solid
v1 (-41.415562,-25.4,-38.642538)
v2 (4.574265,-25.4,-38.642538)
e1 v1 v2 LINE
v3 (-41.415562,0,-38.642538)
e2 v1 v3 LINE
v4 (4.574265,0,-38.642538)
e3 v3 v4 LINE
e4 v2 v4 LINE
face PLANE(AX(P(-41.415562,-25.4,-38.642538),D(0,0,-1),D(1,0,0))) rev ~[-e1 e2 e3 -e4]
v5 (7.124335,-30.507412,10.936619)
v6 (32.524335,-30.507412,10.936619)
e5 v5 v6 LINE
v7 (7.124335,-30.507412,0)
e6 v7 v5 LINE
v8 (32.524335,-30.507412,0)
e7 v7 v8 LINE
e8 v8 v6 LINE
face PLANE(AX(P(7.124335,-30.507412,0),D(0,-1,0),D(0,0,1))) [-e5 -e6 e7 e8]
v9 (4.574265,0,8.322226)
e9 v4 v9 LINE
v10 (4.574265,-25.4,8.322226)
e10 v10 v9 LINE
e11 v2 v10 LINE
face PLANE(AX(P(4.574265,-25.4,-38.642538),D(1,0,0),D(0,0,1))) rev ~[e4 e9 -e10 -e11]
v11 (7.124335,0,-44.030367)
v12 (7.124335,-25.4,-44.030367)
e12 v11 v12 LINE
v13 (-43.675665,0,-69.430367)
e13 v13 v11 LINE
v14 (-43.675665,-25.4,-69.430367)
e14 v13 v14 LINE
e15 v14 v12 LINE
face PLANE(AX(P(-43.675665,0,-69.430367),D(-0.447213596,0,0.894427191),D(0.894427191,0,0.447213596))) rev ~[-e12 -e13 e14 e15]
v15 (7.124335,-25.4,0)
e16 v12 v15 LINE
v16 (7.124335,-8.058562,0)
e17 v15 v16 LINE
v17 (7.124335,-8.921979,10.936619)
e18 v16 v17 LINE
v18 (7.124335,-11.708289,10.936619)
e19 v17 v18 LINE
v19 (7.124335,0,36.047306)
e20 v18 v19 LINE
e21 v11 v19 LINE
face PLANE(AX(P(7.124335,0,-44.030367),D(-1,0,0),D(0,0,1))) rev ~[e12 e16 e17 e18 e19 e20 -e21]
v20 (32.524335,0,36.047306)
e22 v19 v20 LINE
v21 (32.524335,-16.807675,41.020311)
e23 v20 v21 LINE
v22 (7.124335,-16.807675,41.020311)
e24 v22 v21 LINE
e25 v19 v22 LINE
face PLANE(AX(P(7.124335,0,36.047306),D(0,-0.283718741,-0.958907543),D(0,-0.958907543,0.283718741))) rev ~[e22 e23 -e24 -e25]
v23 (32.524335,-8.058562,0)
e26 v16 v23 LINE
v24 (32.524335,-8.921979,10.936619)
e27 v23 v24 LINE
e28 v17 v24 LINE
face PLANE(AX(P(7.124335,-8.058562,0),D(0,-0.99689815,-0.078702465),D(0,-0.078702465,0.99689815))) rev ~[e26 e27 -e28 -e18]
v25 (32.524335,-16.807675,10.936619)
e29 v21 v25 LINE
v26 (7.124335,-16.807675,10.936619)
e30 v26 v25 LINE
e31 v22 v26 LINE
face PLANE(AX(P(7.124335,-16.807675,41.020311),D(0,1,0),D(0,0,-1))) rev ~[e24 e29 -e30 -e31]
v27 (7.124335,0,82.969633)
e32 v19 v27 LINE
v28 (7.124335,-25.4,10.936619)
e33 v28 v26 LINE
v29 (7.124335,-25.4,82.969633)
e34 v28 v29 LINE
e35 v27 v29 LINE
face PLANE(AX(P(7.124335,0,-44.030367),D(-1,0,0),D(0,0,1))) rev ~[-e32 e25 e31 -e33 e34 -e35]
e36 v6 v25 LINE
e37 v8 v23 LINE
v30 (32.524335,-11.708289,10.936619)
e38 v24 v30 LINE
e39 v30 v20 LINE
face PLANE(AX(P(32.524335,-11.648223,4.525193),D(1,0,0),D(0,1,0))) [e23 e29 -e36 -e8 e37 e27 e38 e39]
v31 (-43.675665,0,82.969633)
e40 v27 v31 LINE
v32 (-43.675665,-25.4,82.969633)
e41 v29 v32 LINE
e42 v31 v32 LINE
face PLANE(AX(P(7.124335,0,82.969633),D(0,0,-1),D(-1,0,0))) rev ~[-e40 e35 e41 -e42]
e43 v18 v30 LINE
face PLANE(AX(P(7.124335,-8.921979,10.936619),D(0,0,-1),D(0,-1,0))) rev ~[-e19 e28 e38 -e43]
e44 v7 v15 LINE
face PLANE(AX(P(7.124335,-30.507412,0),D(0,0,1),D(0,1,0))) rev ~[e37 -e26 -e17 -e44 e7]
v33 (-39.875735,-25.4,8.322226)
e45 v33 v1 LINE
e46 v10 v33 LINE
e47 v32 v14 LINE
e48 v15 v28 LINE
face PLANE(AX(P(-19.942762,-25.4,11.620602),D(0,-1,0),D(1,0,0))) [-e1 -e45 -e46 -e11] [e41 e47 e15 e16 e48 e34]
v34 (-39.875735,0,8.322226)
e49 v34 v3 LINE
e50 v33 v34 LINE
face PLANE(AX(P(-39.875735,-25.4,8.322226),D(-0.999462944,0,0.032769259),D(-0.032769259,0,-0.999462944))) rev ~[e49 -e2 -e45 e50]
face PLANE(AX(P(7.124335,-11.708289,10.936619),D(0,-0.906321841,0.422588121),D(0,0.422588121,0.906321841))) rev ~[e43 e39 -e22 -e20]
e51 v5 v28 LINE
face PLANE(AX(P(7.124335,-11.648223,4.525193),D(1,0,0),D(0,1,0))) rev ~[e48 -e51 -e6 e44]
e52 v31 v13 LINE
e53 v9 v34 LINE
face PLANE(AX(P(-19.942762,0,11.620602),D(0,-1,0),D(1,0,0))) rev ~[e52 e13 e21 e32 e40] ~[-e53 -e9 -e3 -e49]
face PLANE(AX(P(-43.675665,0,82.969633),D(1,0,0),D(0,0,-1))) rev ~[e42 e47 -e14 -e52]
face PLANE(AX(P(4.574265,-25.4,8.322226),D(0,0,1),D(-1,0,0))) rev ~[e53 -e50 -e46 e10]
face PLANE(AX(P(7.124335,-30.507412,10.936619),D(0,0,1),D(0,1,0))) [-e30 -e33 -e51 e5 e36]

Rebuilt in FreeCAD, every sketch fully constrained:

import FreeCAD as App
import Part
import Sketcher
Q = App.Units.Quantity

doc = App.newDocument("Part")
body = doc.addObject("PartDesign::Body", "Body")

# Sketch on XZ plane
sketch1 = body.newObject("Sketcher::SketchObject", "Sketch")
sketch1.AttachmentSupport = (doc.getObject("XZ_Plane"), [""])
sketch1.MapMode = "FlatFace"
sketch1.addGeometry([
    Part.LineSegment(App.Vector(-44, 83, 0), App.Vector(-44, -69, 0)),
    Part.LineSegment(App.Vector(-44, -69, 0), App.Vector(7, -44, 0)),
    Part.LineSegment(App.Vector(7, -44, 0), App.Vector(7, 83, 0)),
    Part.LineSegment(App.Vector(7, 83, 0), App.Vector(-44, 83, 0)),
], False)
sketch1.addConstraint([
    Sketcher.Constraint("Coincident", 0, 2, 1, 1),
    Sketcher.Constraint("Coincident", 1, 2, 2, 1),
    Sketcher.Constraint("Coincident", 2, 2, 3, 1),
    Sketcher.Constraint("Coincident", 3, 2, 0, 1),
    Sketcher.Constraint("Vertical", 0),
    Sketcher.Constraint("Vertical", 2),
    Sketcher.Constraint("Horizontal", 3),
    Sketcher.Constraint("DistanceX", 3, 2, 3, 1, Q("2 in")),
    Sketcher.Constraint("DistanceY", 0, 2, 0, 1, Q("6 in")),
    Sketcher.Constraint("DistanceY", 2, 1, 2, 2, Q("5 in")),
    Sketcher.Constraint("DistanceX", 0, 2, -1, 1, 43.675665),
    Sketcher.Constraint("DistanceY", 0, 2, -1, 1, 69.430367),
])
pad1 = body.newObject("PartDesign::Pad", "Pad")
pad1.Profile = sketch1
pad1.Length = Q("1 in")

# Sketch on YZ plane
sketch2 = body.newObject("Sketcher::SketchObject", "Sketch001")
sketch2.AttachmentSupport = (doc.getObject("YZ_Plane"), [""])
sketch2.MapMode = "FlatFace"
sketch2.AttachmentOffset = App.Placement(App.Vector(0, 0, 7.124335), App.Rotation())
sketch2.addGeometry([
    Part.LineSegment(App.Vector(-8.1, 0, 0), App.Vector(-8.9, 10.9, 0)),  # 0
    Part.LineSegment(App.Vector(-8.9, 10.9, 0), App.Vector(-11.7, 10.9, 0)),  # 1
    Part.LineSegment(App.Vector(-11.7, 10.9, 0), App.Vector(0, 36, 0)),  # 2
    Part.LineSegment(App.Vector(0, 36, 0), App.Vector(-16.8, 41, 0)),  # 3
    Part.LineSegment(App.Vector(-16.8, 41, 0), App.Vector(-16.8, 10.9, 0)),  # 4
    Part.LineSegment(App.Vector(-16.8, 10.9, 0), App.Vector(-30.5, 10.9, 0)),  # 5
    Part.LineSegment(App.Vector(-30.5, 10.9, 0), App.Vector(-30.5, 0, 0)),  # 6
    Part.LineSegment(App.Vector(-30.5, 0, 0), App.Vector(-8.1, 0, 0)),  # 7
], False)
sketch2.addConstraint([
    Sketcher.Constraint("Coincident", 0, 2, 1, 1),
    Sketcher.Constraint("Coincident", 1, 2, 2, 1),
    Sketcher.Constraint("Coincident", 2, 2, 3, 1),
    Sketcher.Constraint("Coincident", 3, 2, 4, 1),
    Sketcher.Constraint("Coincident", 4, 2, 5, 1),
    Sketcher.Constraint("Coincident", 5, 2, 6, 1),
    Sketcher.Constraint("Coincident", 6, 2, 7, 1),
    Sketcher.Constraint("Coincident", 7, 2, 0, 1),
    Sketcher.Constraint("Horizontal", 1),
    Sketcher.Constraint("Vertical", 4),
    Sketcher.Constraint("Horizontal", 5),
    Sketcher.Constraint("Vertical", 6),
    Sketcher.Constraint("Horizontal", 7),
    Sketcher.Constraint("PointOnObject", 2, 2, -2),
    Sketcher.Constraint("PointOnObject", 6, 2, -1),
    Sketcher.Constraint("Horizontal", 1, 2, 4, 2),
    Sketcher.Constraint("DistanceX", 1, 2, 1, 1, 2.78631),
    Sketcher.Constraint("DistanceX", 7, 1, 7, 2, 22.44885),
    Sketcher.Constraint("DistanceY", 6, 2, 6, 1, 10.936619),
    Sketcher.Constraint("Distance", 0, 10.970648),
    Sketcher.Constraint("Distance", 2, 27.706148),
    Sketcher.Constraint("Distance", 3, 17.527942),
    Sketcher.Constraint("DistanceX", 5, 2, 5, 1, 13.699736),
    Sketcher.Constraint("DistanceY", 4, 2, 4, 1, 30.083693),
])
pad2 = body.newObject("PartDesign::Pad", "Pad001")
pad2.Profile = sketch2
pad2.Length = Q("1 in")

# Sketch on XZ plane
sketch3 = body.newObject("Sketcher::SketchObject", "Sketch002")
sketch3.AttachmentSupport = (doc.getObject("XZ_Plane"), [""])
sketch3.MapMode = "FlatFace"
sketch3.AttachmentOffset = App.Placement(App.Vector(0, 0, 1 * 25.4), App.Rotation())
sketch3.addGeometry([
    Part.LineSegment(App.Vector(5, 8, 0), App.Vector(-40, 8, 0)),
    Part.LineSegment(App.Vector(-40, 8, 0), App.Vector(-41, -39, 0)),
    Part.LineSegment(App.Vector(-41, -39, 0), App.Vector(5, -39, 0)),
    Part.LineSegment(App.Vector(5, -39, 0), App.Vector(5, 8, 0)),
], False)
sketch3.addConstraint([
    Sketcher.Constraint("Coincident", 0, 2, 1, 1),
    Sketcher.Constraint("Coincident", 1, 2, 2, 1),
    Sketcher.Constraint("Coincident", 2, 2, 3, 1),
    Sketcher.Constraint("Coincident", 3, 2, 0, 1),
    Sketcher.Constraint("Horizontal", 0),
    Sketcher.Constraint("Horizontal", 2),
    Sketcher.Constraint("Vertical", 3),
    Sketcher.Constraint("DistanceX", 0, 2, 0, 1, Q("1.75 in")),
    Sketcher.Constraint("Distance", 1, Q("1.85 in")),
    Sketcher.Constraint("DistanceX", 2, 1, 2, 2, 45.989827),
    Sketcher.Constraint("DistanceX", 0, 2, -1, 1, 39.875735),
    Sketcher.Constraint("DistanceY", -1, 1, 0, 2, 8.322226),
])
pocket1 = body.newObject("PartDesign::Pocket", "Pocket")
pocket1.Profile = sketch3
pocket1.Length = Q("2 in")

doc.recompute()
